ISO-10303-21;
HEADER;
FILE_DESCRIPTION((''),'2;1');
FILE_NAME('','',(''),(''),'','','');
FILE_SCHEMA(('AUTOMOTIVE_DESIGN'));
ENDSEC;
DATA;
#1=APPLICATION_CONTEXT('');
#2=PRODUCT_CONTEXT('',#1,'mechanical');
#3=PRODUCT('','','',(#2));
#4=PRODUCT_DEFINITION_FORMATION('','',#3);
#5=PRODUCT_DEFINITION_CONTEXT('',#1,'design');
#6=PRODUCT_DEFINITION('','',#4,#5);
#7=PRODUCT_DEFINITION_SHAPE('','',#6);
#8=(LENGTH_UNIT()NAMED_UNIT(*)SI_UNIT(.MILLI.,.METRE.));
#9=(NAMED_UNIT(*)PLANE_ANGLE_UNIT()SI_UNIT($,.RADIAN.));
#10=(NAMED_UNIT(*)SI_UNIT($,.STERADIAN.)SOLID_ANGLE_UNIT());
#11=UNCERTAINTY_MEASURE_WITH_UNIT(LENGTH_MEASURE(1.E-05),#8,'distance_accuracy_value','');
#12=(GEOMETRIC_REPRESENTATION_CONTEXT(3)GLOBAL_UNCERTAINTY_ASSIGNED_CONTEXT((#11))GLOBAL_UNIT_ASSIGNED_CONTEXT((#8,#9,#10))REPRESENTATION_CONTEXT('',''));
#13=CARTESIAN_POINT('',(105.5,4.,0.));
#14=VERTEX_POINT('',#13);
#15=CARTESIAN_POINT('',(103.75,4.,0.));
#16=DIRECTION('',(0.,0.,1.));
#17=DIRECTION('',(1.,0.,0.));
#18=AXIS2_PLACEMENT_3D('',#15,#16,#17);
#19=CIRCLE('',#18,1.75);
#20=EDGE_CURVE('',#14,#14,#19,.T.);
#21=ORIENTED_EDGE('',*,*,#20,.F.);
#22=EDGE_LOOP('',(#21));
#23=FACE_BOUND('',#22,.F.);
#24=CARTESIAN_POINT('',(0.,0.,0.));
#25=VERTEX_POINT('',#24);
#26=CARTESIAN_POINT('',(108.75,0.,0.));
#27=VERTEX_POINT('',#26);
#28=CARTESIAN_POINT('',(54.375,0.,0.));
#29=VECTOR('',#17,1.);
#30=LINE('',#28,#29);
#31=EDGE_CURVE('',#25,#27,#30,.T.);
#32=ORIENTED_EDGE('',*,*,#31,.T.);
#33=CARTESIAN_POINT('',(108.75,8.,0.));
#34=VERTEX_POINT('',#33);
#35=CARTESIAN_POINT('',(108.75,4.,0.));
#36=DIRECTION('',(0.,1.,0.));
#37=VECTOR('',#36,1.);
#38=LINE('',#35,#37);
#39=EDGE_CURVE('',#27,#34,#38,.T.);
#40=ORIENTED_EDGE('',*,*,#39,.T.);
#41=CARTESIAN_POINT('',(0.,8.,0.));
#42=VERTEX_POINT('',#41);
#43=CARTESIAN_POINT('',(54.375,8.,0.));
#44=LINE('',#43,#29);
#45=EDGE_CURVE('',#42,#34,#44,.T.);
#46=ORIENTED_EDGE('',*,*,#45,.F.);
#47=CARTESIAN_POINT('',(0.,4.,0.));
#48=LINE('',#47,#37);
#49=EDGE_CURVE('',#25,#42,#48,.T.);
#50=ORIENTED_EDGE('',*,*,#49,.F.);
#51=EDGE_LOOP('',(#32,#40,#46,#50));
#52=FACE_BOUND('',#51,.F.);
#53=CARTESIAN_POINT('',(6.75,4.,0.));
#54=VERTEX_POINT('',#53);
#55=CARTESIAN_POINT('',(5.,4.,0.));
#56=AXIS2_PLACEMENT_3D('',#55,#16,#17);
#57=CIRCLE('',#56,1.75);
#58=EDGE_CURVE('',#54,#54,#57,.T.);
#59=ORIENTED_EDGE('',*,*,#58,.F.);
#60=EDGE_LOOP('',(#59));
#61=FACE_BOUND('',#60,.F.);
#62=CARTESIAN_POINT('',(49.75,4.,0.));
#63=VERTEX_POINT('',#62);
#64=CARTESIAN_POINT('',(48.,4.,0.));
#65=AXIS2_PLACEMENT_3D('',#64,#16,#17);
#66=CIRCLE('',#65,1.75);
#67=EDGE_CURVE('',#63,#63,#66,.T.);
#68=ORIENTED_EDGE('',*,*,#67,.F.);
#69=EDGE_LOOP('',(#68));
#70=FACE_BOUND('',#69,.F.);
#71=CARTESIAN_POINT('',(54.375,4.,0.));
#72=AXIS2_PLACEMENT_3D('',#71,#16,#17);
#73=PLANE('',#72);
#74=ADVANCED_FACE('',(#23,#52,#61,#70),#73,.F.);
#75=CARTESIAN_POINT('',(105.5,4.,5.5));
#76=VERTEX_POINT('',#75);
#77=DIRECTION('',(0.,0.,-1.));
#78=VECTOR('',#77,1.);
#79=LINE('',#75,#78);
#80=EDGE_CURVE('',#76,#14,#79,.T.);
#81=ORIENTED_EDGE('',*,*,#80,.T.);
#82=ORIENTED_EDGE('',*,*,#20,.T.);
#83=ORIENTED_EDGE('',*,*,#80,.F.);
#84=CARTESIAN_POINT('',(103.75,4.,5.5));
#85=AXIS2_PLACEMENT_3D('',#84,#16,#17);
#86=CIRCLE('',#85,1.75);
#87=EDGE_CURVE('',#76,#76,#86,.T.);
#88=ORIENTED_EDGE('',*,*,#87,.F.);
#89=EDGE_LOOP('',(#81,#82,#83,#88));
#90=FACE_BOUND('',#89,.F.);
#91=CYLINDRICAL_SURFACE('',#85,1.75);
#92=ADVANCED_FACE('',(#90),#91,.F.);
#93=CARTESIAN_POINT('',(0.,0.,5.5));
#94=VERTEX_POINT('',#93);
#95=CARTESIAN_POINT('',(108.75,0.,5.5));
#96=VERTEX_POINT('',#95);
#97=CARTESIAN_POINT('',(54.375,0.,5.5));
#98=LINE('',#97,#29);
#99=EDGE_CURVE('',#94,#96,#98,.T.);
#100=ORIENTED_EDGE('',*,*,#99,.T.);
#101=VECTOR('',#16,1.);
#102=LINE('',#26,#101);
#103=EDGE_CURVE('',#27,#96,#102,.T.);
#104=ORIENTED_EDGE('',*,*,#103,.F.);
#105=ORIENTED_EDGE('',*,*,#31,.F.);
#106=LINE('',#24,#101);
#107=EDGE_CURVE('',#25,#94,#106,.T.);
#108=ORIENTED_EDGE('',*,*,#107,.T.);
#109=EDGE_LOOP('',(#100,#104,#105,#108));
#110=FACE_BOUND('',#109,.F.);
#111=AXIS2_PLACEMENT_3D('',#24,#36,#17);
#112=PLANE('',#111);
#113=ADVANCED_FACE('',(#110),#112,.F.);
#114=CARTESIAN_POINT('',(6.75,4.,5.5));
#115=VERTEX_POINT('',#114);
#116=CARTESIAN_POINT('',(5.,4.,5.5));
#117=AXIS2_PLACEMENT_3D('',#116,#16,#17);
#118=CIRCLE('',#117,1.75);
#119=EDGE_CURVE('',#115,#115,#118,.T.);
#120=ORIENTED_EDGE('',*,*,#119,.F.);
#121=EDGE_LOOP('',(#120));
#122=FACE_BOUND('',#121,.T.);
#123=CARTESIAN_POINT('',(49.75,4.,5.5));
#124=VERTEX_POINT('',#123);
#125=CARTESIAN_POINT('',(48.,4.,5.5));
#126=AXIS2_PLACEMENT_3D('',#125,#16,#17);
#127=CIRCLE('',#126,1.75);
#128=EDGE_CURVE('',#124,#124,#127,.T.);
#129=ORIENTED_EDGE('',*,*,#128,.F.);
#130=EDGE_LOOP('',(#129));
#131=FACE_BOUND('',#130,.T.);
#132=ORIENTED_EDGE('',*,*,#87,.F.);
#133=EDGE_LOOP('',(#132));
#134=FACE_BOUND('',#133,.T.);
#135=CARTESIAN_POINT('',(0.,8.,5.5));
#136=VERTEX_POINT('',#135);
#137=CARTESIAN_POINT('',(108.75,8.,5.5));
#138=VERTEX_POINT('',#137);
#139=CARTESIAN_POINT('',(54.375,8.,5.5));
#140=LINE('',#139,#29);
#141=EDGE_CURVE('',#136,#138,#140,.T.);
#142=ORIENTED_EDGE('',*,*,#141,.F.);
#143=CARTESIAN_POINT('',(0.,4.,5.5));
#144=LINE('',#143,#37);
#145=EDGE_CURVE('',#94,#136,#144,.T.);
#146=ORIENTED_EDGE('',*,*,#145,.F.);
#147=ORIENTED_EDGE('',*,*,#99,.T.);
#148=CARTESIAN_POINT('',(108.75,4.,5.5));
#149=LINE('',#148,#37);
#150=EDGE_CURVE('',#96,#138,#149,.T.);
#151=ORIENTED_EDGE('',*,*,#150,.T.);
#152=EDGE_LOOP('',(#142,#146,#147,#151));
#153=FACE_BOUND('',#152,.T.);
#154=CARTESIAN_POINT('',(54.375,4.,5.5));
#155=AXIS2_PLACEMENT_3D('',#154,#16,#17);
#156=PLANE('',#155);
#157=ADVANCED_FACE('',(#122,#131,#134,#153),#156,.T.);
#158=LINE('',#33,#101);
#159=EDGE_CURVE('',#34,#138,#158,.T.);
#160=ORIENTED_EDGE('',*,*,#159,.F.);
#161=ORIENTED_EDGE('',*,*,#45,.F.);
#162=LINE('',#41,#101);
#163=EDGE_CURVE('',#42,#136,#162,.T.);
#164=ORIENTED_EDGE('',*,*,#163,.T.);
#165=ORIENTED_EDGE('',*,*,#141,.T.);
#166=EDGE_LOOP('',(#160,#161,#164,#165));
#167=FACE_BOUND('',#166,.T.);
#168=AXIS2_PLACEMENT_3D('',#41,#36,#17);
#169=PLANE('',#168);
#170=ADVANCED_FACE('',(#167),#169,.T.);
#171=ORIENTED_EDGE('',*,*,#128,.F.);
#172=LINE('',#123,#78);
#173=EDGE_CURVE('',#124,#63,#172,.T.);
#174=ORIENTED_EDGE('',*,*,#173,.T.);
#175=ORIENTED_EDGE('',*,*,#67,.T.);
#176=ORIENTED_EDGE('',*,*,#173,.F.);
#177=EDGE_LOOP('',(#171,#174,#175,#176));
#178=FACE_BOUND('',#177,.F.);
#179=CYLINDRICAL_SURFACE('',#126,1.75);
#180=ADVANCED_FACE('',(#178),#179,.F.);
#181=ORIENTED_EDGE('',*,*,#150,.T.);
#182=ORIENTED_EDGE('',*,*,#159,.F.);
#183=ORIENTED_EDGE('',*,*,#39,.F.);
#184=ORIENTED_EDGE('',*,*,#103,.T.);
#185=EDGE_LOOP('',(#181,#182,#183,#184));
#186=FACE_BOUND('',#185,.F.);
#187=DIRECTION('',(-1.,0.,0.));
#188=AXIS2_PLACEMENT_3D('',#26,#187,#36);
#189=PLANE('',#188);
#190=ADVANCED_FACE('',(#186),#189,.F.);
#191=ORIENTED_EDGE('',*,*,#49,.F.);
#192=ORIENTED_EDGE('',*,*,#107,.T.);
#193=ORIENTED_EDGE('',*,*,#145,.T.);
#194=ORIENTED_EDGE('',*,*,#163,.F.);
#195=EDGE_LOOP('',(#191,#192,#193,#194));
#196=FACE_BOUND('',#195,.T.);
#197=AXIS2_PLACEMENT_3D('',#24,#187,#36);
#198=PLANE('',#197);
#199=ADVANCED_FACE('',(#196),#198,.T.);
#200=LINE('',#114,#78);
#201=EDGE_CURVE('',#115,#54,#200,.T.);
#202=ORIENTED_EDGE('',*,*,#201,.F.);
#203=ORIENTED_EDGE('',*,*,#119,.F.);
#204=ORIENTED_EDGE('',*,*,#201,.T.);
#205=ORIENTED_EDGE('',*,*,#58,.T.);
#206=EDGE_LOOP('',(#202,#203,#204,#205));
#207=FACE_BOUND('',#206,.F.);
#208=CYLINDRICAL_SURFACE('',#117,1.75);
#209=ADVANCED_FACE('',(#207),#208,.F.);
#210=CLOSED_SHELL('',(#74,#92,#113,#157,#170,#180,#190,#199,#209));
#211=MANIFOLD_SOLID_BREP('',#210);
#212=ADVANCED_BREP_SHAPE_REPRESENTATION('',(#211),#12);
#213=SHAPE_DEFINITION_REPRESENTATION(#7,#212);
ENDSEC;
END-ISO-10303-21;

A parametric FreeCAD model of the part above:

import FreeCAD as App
import Part
import Sketcher

V = App.Vector

doc = App.newDocument("Part")
body = doc.addObject("PartDesign::Body", "Body")

# Sketch on XY plane
sketch1 = body.newObject("Sketcher::SketchObject", "Sketch")
sketch1.AttachmentSupport = (doc.getObject("XY_Plane"), [""])
sketch1.MapMode = "FlatFace"
sketch1.addGeometry([
    Part.LineSegment(V(0, 8, 0), V(0, 0, 0)),
    Part.LineSegment(V(0, 0, 0), V(109, 0, 0)),
    Part.LineSegment(V(109, 0, 0), V(109, 8, 0)),
    Part.LineSegment(V(109, 8, 0), V(0, 8, 0)),
], False)
sketch1.addConstraint([
    Sketcher.Constraint("Coincident", 0, 2, 1, 1),
    Sketcher.Constraint("Coincident", 1, 2, 2, 1),
    Sketcher.Constraint("Coincident", 2, 2, 3, 1),
    Sketcher.Constraint("Coincident", 3, 2, 0, 1),
    Sketcher.Constraint("Vertical", 0),
    Sketcher.Constraint("Horizontal", 1),
    Sketcher.Constraint("Vertical", 2),
    Sketcher.Constraint("Horizontal", 3),
    Sketcher.Constraint("Coincident", 0, 2, -1, 1),
    Sketcher.Constraint("DistanceY", 0, 2, 0, 1, 8.0),
    Sketcher.Constraint("DistanceX", 1, 1, 1, 2, 108.75),
])
pad1 = body.newObject("PartDesign::Pad", "Pad")
pad1.Profile = sketch1
pad1.Length = 5.5

# Sketch on XY plane
sketch2 = body.newObject("Sketcher::SketchObject", "Sketch001")
sketch2.AttachmentSupport = (doc.getObject("XY_Plane"), [""])
sketch2.MapMode = "FlatFace"
sketch2.AttachmentOffset = App.Placement(V(0, 0, 5.5), App.Rotation())
sketch2.addGeometry([
    Part.Circle(V(5, 4, 0), V(0, 0, 1), 1.8),
    Part.Circle(V(48, 4, 0), V(0, 0, 1), 1.8),
    Part.Circle(V(103.8, 4, 0), V(0, 0, 1), 1.8),
], False)
sketch2.addConstraint([
    Sketcher.Constraint("Equal", 0, 1),
    Sketcher.Constraint("Equal", 1, 2),
    Sketcher.Constraint("Horizontal", 0, 3, 1, 3),
    Sketcher.Constraint("Horizontal", 1, 3, 2, 3),
    Sketcher.Constraint("Diameter", 0, 3.5),
    Sketcher.Constraint("DistanceX", -1, 1, 0, 3, 5.0),
    Sketcher.Constraint("DistanceY", -1, 1, 0, 3, 4.0),
    Sketcher.Constraint("DistanceX", -1, 1, 1, 3, 48.0),
    Sketcher.Constraint("DistanceX", -1, 1, 2, 3, 103.75),
])
pocket1 = body.newObject("PartDesign::Pocket", "Pocket")
pocket1.Profile = sketch2
pocket1.Length = 10

doc.recompute()
